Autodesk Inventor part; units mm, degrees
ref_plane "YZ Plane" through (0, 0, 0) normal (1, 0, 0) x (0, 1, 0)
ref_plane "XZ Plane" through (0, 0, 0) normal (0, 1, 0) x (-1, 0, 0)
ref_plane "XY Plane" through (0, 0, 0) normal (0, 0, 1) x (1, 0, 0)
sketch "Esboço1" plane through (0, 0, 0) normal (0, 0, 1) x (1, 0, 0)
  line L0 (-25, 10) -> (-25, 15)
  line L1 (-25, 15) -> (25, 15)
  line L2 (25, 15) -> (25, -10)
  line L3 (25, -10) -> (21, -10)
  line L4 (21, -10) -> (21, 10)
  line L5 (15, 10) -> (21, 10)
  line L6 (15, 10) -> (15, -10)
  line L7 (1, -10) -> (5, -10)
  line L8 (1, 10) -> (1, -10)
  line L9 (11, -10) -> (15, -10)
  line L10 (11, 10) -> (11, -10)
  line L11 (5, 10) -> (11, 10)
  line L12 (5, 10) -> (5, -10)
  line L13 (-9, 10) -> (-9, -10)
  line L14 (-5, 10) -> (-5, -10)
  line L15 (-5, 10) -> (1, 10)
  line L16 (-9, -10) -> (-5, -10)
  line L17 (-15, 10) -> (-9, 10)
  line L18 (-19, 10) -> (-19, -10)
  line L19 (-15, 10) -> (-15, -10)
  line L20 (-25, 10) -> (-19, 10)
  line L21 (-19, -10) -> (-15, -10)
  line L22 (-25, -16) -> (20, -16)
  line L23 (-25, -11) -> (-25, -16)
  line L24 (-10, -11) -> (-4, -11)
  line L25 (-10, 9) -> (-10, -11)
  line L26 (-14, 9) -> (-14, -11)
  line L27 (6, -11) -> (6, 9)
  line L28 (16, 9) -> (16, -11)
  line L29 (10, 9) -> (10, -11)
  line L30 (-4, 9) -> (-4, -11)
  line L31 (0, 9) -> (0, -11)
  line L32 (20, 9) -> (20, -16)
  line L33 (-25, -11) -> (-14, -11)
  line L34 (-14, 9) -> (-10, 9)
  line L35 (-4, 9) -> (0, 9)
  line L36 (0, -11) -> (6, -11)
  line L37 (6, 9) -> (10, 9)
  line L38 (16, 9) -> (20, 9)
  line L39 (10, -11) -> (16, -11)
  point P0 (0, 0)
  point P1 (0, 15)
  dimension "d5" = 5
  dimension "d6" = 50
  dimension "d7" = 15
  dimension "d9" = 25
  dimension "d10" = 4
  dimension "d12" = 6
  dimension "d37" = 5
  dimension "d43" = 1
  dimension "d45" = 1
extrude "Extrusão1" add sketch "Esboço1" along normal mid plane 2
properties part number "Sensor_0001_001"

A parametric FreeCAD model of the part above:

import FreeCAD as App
import Part
import Sketcher
from FreeCAD import Vector

doc = App.newDocument("Part")
body = doc.addObject("PartDesign::Body", "Body")
body.AllowCompound = True

sketch1 = body.newObject("Sketcher::SketchObject", "Sketch")
sketch1.AttachmentSupport = (doc.getObject("XY_Plane"), [""])
sketch1.MapMode = "FlatFace"
sketch1.addGeometry([
    Part.LineSegment(Vector(-25, 15, 0), Vector(-25, 10, 0)),
    Part.LineSegment(Vector(-25, 10, 0), Vector(-19, 10, 0)),
    Part.LineSegment(Vector(-19, 10, 0), Vector(-19, -10, 0)),
    Part.LineSegment(Vector(-19, -10, 0), Vector(-15, -10, 0)),
    Part.LineSegment(Vector(-15, -10, 0), Vector(-15, 10, 0)),
    Part.LineSegment(Vector(-15, 10, 0), Vector(-9, 10, 0)),
    Part.LineSegment(Vector(-9, 10, 0), Vector(-9, -10, 0)),
    Part.LineSegment(Vector(-9, -10, 0), Vector(-5, -10, 0)),
    Part.LineSegment(Vector(-5, -10, 0), Vector(-5, 10, 0)),
    Part.LineSegment(Vector(-5, 10, 0), Vector(1, 10, 0)),
    Part.LineSegment(Vector(1, 10, 0), Vector(1, -10, 0)),
    Part.LineSegment(Vector(1, -10, 0), Vector(5, -10, 0)),
    Part.LineSegment(Vector(5, -10, 0), Vector(5, 10, 0)),
    Part.LineSegment(Vector(5, 10, 0), Vector(11, 10, 0)),
    Part.LineSegment(Vector(11, 10, 0), Vector(11, -10, 0)),
    Part.LineSegment(Vector(11, -10, 0), Vector(15, -10, 0)),
    Part.LineSegment(Vector(15, -10, 0), Vector(15, 10, 0)),
    Part.LineSegment(Vector(15, 10, 0), Vector(21, 10, 0)),
    Part.LineSegment(Vector(21, 10, 0), Vector(21, -10, 0)),
    Part.LineSegment(Vector(21, -10, 0), Vector(25, -10, 0)),
    Part.LineSegment(Vector(25, -10, 0), Vector(25, 15, 0)),
    Part.LineSegment(Vector(25, 15, 0), Vector(-25, 15, 0)),
    Part.LineSegment(Vector(-25, -11, 0), Vector(-25, -16, 0)),
    Part.LineSegment(Vector(-25, -16, 0), Vector(20, -16, 0)),
    Part.LineSegment(Vector(20, -16, 0), Vector(20, 9, 0)),
    Part.LineSegment(Vector(20, 9, 0), Vector(16, 9, 0)),
    Part.LineSegment(Vector(16, 9, 0), Vector(16, -11, 0)),
    Part.LineSegment(Vector(16, -11, 0), Vector(10, -11, 0)),
    Part.LineSegment(Vector(10, -11, 0), Vector(10, 9, 0)),
    Part.LineSegment(Vector(10, 9, 0), Vector(6, 9, 0)),
    Part.LineSegment(Vector(6, 9, 0), Vector(6, -11, 0)),
    Part.LineSegment(Vector(6, -11, 0), Vector(0, -11, 0)),
    Part.LineSegment(Vector(0, -11, 0), Vector(0, 9, 0)),
    Part.LineSegment(Vector(0, 9, 0), Vector(-4, 9, 0)),
    Part.LineSegment(Vector(-4, 9, 0), Vector(-4, -11, 0)),
    Part.LineSegment(Vector(-4, -11, 0), Vector(-10, -11, 0)),
    Part.LineSegment(Vector(-10, -11, 0), Vector(-10, 9, 0)),
    Part.LineSegment(Vector(-10, 9, 0), Vector(-14, 9, 0)),
    Part.LineSegment(Vector(-14, 9, 0), Vector(-14, -11, 0)),
    Part.LineSegment(Vector(-14, -11, 0), Vector(-25, -11, 0)),
], False)
sketch1.addConstraint([
    Sketcher.Constraint("Coincident", 0, 2, 1, 1),
    Sketcher.Constraint("Coincident", 1, 2, 2, 1),
    Sketcher.Constraint("Coincident", 2, 2, 3, 1),
    Sketcher.Constraint("Coincident", 3, 2, 4, 1),
    Sketcher.Constraint("Coincident", 4, 2, 5, 1),
    Sketcher.Constraint("Coincident", 5, 2, 6, 1),
    Sketcher.Constraint("Coincident", 6, 2, 7, 1),
    Sketcher.Constraint("Coincident", 7, 2, 8, 1),
    Sketcher.Constraint("Coincident", 8, 2, 9, 1),
    Sketcher.Constraint("Coincident", 9, 2, 10, 1),
    Sketcher.Constraint("Coincident", 10, 2, 11, 1),
    Sketcher.Constraint("Coincident", 11, 2, 12, 1),
    Sketcher.Constraint("Coincident", 12, 2, 13, 1),
    Sketcher.Constraint("Coincident", 13, 2, 14, 1),
    Sketcher.Constraint("Coincident", 14, 2, 15, 1),
    Sketcher.Constraint("Coincident", 15, 2, 16, 1),
    Sketcher.Constraint("Coincident", 16, 2, 17, 1),
    Sketcher.Constraint("Coincident", 17, 2, 18, 1),
    Sketcher.Constraint("Coincident", 18, 2, 19, 1),
    Sketcher.Constraint("Coincident", 19, 2, 20, 1),
    Sketcher.Constraint("Coincident", 20, 2, 21, 1),
    Sketcher.Constraint("Coincident", 21, 2, 0, 1),
    Sketcher.Constraint("Coincident", 22, 2, 23, 1),
    Sketcher.Constraint("Coincident", 23, 2, 24, 1),
    Sketcher.Constraint("Coincident", 24, 2, 25, 1),
    Sketcher.Constraint("Coincident", 25, 2, 26, 1),
    Sketcher.Constraint("Coincident", 26, 2, 27, 1),
    Sketcher.Constraint("Coincident", 27, 2, 28, 1),
    Sketcher.Constraint("Coincident", 28, 2, 29, 1),
    Sketcher.Constraint("Coincident", 29, 2, 30, 1),
    Sketcher.Constraint("Coincident", 30, 2, 31, 1),
    Sketcher.Constraint("Coincident", 31, 2, 32, 1),
    Sketcher.Constraint("Coincident", 32, 2, 33, 1),
    Sketcher.Constraint("Coincident", 33, 2, 34, 1),
    Sketcher.Constraint("Coincident", 34, 2, 35, 1),
    Sketcher.Constraint("Coincident", 35, 2, 36, 1),
    Sketcher.Constraint("Coincident", 36, 2, 37, 1),
    Sketcher.Constraint("Coincident", 37, 2, 38, 1),
    Sketcher.Constraint("Coincident", 38, 2, 39, 1),
    Sketcher.Constraint("Coincident", 39, 2, 22, 1),
    Sketcher.Constraint("Vertical", 0),
    Sketcher.Constraint("Horizontal", 1),
    Sketcher.Constraint("Vertical", 2),
    Sketcher.Constraint("Horizontal", 3),
    Sketcher.Constraint("Vertical", 4),
    Sketcher.Constraint("Horizontal", 5),
    Sketcher.Constraint("Vertical", 6),
    Sketcher.Constraint("Horizontal", 7),
    Sketcher.Constraint("Vertical", 8),
    Sketcher.Constraint("Horizontal", 9),
    Sketcher.Constraint("Vertical", 10),
    Sketcher.Constraint("Horizontal", 11),
    Sketcher.Constraint("Vertical", 12),
    Sketcher.Constraint("Horizontal", 13),
    Sketcher.Constraint("Vertical", 14),
    Sketcher.Constraint("Horizontal", 15),
    Sketcher.Constraint("Vertical", 16),
    Sketcher.Constraint("Horizontal", 17),
    Sketcher.Constraint("Vertical", 18),
    Sketcher.Constraint("Horizontal", 19),
    Sketcher.Constraint("Vertical", 20),
    Sketcher.Constraint("Horizontal", 21),
    Sketcher.Constraint("Vertical", 22),
    Sketcher.Constraint("Horizontal", 23),
    Sketcher.Constraint("Vertical", 24),
    Sketcher.Constraint("Horizontal", 25),
    Sketcher.Constraint("Vertical", 26),
    Sketcher.Constraint("Horizontal", 27),
    Sketcher.Constraint("Vertical", 28),
    Sketcher.Constraint("Horizontal", 29),
    Sketcher.Constraint("Vertical", 30),
    Sketcher.Constraint("Horizontal", 31),
    Sketcher.Constraint("Vertical", 32),
    Sketcher.Constraint("Horizontal", 33),
    Sketcher.Constraint("Vertical", 34),
    Sketcher.Constraint("Horizontal", 35),
    Sketcher.Constraint("Vertical", 36),
    Sketcher.Constraint("Horizontal", 37),
    Sketcher.Constraint("Vertical", 38),
    Sketcher.Constraint("Horizontal", 39),
    Sketcher.Constraint("Symmetric", 8, 2, 11, 2, -1, 1),
    Sketcher.Constraint("Symmetric", 4, 2, 15, 2, -1, 1),
    Sketcher.Constraint("Symmetric", 0, 2, 19, 2, -1, 1),
    Sketcher.Constraint("Symmetric", 27, 2, 35, 2, -2),
    Sketcher.Constraint("PointOnObject", 31, 2, -2),
    Sketcher.Constraint("Horizontal", 1, 2, 4, 2),
    Sketcher.Constraint("Horizontal", 3, 2, 6, 2),
    Sketcher.Constraint("Horizontal", 5, 2, 8, 2),
    Sketcher.Constraint("Horizontal", 7, 2, 10, 2),
    Sketcher.Constraint("Horizontal", 9, 2, 12, 2),
    Sketcher.Constraint("Horizontal", 13, 2, 16, 2),
    Sketcher.Constraint("Horizontal", 25, 2, 28, 2),
    Sketcher.Constraint("Horizontal", 27, 2, 30, 2),
    Sketcher.Constraint("Horizontal", 29, 2, 32, 2),
    Sketcher.Constraint("Horizontal", 33, 2, 36, 2),
    Sketcher.Constraint("Horizontal", 35, 2, 38, 2),
    Sketcher.Constraint("Vertical", 21, 2, 22, 2),
    Sketcher.Constraint("Equal", 1, 5),
    Sketcher.Constraint("Equal", 3, 7),
    Sketcher.Constraint("Equal", 5, 9),
    Sketcher.Constraint("Equal", 7, 11),
    Sketcher.Constraint("Equal", 9, 13),
    Sketcher.Constraint("Equal", 13, 17),
    Sketcher.Constraint("Equal", 19, 25),
    Sketcher.Constraint("Equal", 17, 27),
    Sketcher.Constraint("Equal", 25, 29),
    Sketcher.Constraint("Equal", 27, 31),
    Sketcher.Constraint("Equal", 29, 33),
    Sketcher.Constraint("Equal", 33, 37),
    Sketcher.Constraint("Equal", 0, 22),
    Sketcher.Constraint("Equal", 20, 24),
    Sketcher.Constraint("DistanceX", 1, 1, 1, 2, 6.0),
    Sketcher.Constraint("DistanceX", 3, 1, 3, 2, 4.0),
    Sketcher.Constraint("DistanceY", 0, 2, 0, 1, 5.0),
    Sketcher.Constraint("DistanceY", 20, 1, 20, 2, 25.0),
    Sketcher.Constraint("DistanceY", 22, 2, 2, 2, 6.0),
])
pad1 = body.newObject("PartDesign::Pad", "Pad")
pad1.Profile = sketch1
pad1.Length = 2
pad1.Midplane = True

doc.recompute()
